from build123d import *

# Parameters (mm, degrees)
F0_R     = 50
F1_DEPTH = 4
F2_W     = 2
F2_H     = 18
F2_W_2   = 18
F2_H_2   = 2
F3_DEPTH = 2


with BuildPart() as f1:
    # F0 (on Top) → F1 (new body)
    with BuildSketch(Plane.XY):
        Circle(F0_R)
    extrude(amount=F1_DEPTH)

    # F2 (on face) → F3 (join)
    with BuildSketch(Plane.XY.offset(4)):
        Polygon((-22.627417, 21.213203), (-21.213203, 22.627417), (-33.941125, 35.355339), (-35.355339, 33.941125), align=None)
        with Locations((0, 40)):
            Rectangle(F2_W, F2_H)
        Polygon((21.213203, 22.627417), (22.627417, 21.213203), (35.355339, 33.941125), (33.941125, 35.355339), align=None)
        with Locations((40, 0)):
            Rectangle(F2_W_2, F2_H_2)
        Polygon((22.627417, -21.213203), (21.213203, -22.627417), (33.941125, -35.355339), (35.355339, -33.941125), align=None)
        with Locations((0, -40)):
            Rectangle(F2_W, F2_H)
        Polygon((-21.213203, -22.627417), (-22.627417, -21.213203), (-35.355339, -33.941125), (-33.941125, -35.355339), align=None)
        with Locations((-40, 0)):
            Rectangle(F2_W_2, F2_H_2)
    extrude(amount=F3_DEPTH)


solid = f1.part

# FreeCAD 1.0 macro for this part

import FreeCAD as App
import Part
import Sketcher
from FreeCAD import Vector

doc = App.newDocument("Part")
params = doc.addObject("Spreadsheet::Sheet", "Params")
for row, (alias, value) in enumerate([
    ("sketch1_diameter", "100 mm"),
    ("pad1_length", "4 mm"),
    ("sketch2_width", "2 mm"),
    ("sketch2_width2", "18 mm"),
    ("sketch2_length", "2.000001 mm"),
    ("sketch2_length2", "18 mm"),
    ("pad2_length", "2 mm"),
], start=1):
    params.set(f"A{row}", alias)
    params.set(f"B{row}", "=" + value)
    params.setAlias(f"B{row}", alias)

body = doc.addObject("PartDesign::Body", "Body")

# Sketch on XY plane
sketch1 = doc.addObject("Sketcher::SketchObject", "Sketch")
body.addObject(sketch1)
sketch1.AttachmentSupport = (doc.XY_Plane, [""])
sketch1.MapMode = "FlatFace"
sketch1.addGeometry(Part.Circle(Vector(0, 0, 0), Vector(0, 0, 1), 50), False)
sketch1.addConstraint(Sketcher.Constraint("Coincident", 0, 3, -1, 1))
sketch1.addConstraint(Sketcher.Constraint("Diameter", 0, 100.0))
sketch1.setExpression("Constraints[1]", "Params.sketch1_diameter")
pad1 = doc.addObject("PartDesign::Pad", "Pad")
body.addObject(pad1)
pad1.Profile = sketch1
pad1.setExpression("Length", "Params.pad1_length")

# Sketch on XY plane
sketch2 = doc.addObject("Sketcher::SketchObject", "Sketch001")
body.addObject(sketch2)
sketch2.AttachmentSupport = (doc.XY_Plane, [""])
sketch2.MapMode = "FlatFace"
sketch2.AttachmentOffset = App.Placement(Vector(0, 0, 4), App.Rotation())
sketch2.addGeometry(Part.LineSegment(Vector(-22.6, 21.2, 0), Vector(-21.2, 22.6, 0)), False)
sketch2.addGeometry(Part.LineSegment(Vector(-21.2, 22.6, 0), Vector(-33.9, 35.4, 0)), False)
sketch2.addGeometry(Part.LineSegment(Vector(-33.9, 35.4, 0), Vector(-35.4, 33.9, 0)), False)
sketch2.addGeometry(Part.LineSegment(Vector(-35.4, 33.9, 0), Vector(-22.6, 21.2, 0)), False)
sketch2.addGeometry(Part.LineSegment(Vector(-1, 49, 0), Vector(-1, 31, 0)), False)
sketch2.addGeometry(Part.LineSegment(Vector(-1, 31, 0), Vector(1, 31, 0)), False)
sketch2.addGeometry(Part.LineSegment(Vector(1, 31, 0), Vector(1, 49, 0)), False)
sketch2.addGeometry(Part.LineSegment(Vector(1, 49, 0), Vector(-1, 49, 0)), False)
sketch2.addGeometry(Part.LineSegment(Vector(21.2, 22.6, 0), Vector(22.6, 21.2, 0)), False)
sketch2.addGeometry(Part.LineSegment(Vector(22.6, 21.2, 0), Vector(35.4, 33.9, 0)), False)
sketch2.addGeometry(Part.LineSegment(Vector(35.4, 33.9, 0), Vector(33.9, 35.4, 0)), False)
sketch2.addGeometry(Part.LineSegment(Vector(33.9, 35.4, 0), Vector(21.2, 22.6, 0)), False)
sketch2.addGeometry(Part.LineSegment(Vector(31, 1, 0), Vector(31, -1, 0)), False)
sketch2.addGeometry(Part.LineSegment(Vector(31, -1, 0), Vector(49, -1, 0)), False)
sketch2.addGeometry(Part.LineSegment(Vector(49, -1, 0), Vector(49, 1, 0)), False)
sketch2.addGeometry(Part.LineSegment(Vector(49, 1, 0), Vector(31, 1, 0)), False)
sketch2.addGeometry(Part.LineSegment(Vector(22.6, -21.2, 0), Vector(21.2, -22.6, 0)), False)
sketch2.addGeometry(Part.LineSegment(Vector(21.2, -22.6, 0), Vector(33.9, -35.4, 0)), False)
sketch2.addGeometry(Part.LineSegment(Vector(33.9, -35.4, 0), Vector(35.4, -33.9, 0)), False)
sketch2.addGeometry(Part.LineSegment(Vector(35.4, -33.9, 0), Vector(22.6, -21.2, 0)), False)
sketch2.addGeometry(Part.LineSegment(Vector(-1, -31, 0), Vector(-1, -49, 0)), False)
sketch2.addGeometry(Part.LineSegment(Vector(-1, -49, 0), Vector(1, -49, 0)), False)
sketch2.addGeometry(Part.LineSegment(Vector(1, -49, 0), Vector(1, -31, 0)), False)
sketch2.addGeometry(Part.LineSegment(Vector(1, -31, 0), Vector(-1, -31, 0)), False)
sketch2.addGeometry(Part.LineSegment(Vector(-21.2, -22.6, 0), Vector(-22.6, -21.2, 0)), False)
sketch2.addGeometry(Part.LineSegment(Vector(-22.6, -21.2, 0), Vector(-35.4, -33.9, 0)), False)
sketch2.addGeometry(Part.LineSegment(Vector(-35.4, -33.9, 0), Vector(-33.9, -35.4, 0)), False)
sketch2.addGeometry(Part.LineSegment(Vector(-33.9, -35.4, 0), Vector(-21.2, -22.6, 0)), False)
sketch2.addGeometry(Part.LineSegment(Vector(-49, 1, 0), Vector(-49, -1, 0)), False)
sketch2.addGeometry(Part.LineSegment(Vector(-49, -1, 0), Vector(-31, -1, 0)), False)
sketch2.addGeometry(Part.LineSegment(Vector(-31, -1, 0), Vector(-31, 1, 0)), False)
sketch2.addGeometry(Part.LineSegment(Vector(-31, 1, 0), Vector(-49, 1, 0)), False)
sketch2.addConstraint(Sketcher.Constraint("Coincident", 0, 2, 1, 1))
sketch2.addConstraint(Sketcher.Constraint("Coincident", 1, 2, 2, 1))
sketch2.addConstraint(Sketcher.Constraint("Coincident", 2, 2, 3, 1))
sketch2.addConstraint(Sketcher.Constraint("Coincident", 3, 2, 0, 1))
sketch2.addConstraint(Sketcher.Constraint("Coincident", 4, 2, 5, 1))
sketch2.addConstraint(Sketcher.Constraint("Coincident", 5, 2, 6, 1))
sketch2.addConstraint(Sketcher.Constraint("Coincident", 6, 2, 7, 1))
sketch2.addConstraint(Sketcher.Constraint("Coincident", 7, 2, 4, 1))
sketch2.addConstraint(Sketcher.Constraint("Coincident", 8, 2, 9, 1))
sketch2.addConstraint(Sketcher.Constraint("Coincident", 9, 2, 10, 1))
sketch2.addConstraint(Sketcher.Constraint("Coincident", 10, 2, 11, 1))
sketch2.addConstraint(Sketcher.Constraint("Coincident", 11, 2, 8, 1))
sketch2.addConstraint(Sketcher.Constraint("Coincident", 12, 2, 13, 1))
sketch2.addConstraint(Sketcher.Constraint("Coincident", 13, 2, 14, 1))
sketch2.addConstraint(Sketcher.Constraint("Coincident", 14, 2, 15, 1))
sketch2.addConstraint(Sketcher.Constraint("Coincident", 15, 2, 12, 1))
sketch2.addConstraint(Sketcher.Constraint("Coincident", 16, 2, 17, 1))
sketch2.addConstraint(Sketcher.Constraint("Coincident", 17, 2, 18, 1))
sketch2.addConstraint(Sketcher.Constraint("Coincident", 18, 2, 19, 1))
sketch2.addConstraint(Sketcher.Constraint("Coincident", 19, 2, 16, 1))
sketch2.addConstraint(Sketcher.Constraint("Coincident", 20, 2, 21, 1))
sketch2.addConstraint(Sketcher.Constraint("Coincident", 21, 2, 22, 1))
sketch2.addConstraint(Sketcher.Constraint("Coincident", 22, 2, 23, 1))
sketch2.addConstraint(Sketcher.Constraint("Coincident", 23, 2, 20, 1))
sketch2.addConstraint(Sketcher.Constraint("Coincident", 24, 2, 25, 1))
sketch2.addConstraint(Sketcher.Constraint("Coincident", 25, 2, 26, 1))
sketch2.addConstraint(Sketcher.Constraint("Coincident", 26, 2, 27, 1))
sketch2.addConstraint(Sketcher.Constraint("Coincident", 27, 2, 24, 1))
sketch2.addConstraint(Sketcher.Constraint("Coincident", 28, 2, 29, 1))
sketch2.addConstraint(Sketcher.Constraint("Coincident", 29, 2, 30, 1))
sketch2.addConstraint(Sketcher.Constraint("Coincident", 30, 2, 31, 1))
sketch2.addConstraint(Sketcher.Constraint("Coincident", 31, 2, 28, 1))
sketch2.addConstraint(Sketcher.Constraint("Vertical", 4))
sketch2.addConstraint(Sketcher.Constraint("Horizontal", 5))
sketch2.addConstraint(Sketcher.Constraint("Vertical", 6))
sketch2.addConstraint(Sketcher.Constraint("Horizontal", 7))
sketch2.addConstraint(Sketcher.Constraint("Vertical", 12))
sketch2.addConstraint(Sketcher.Constraint("Horizontal", 13))
sketch2.addConstraint(Sketcher.Constraint("Vertical", 14))
sketch2.addConstraint(Sketcher.Constraint("Horizontal", 15))
sketch2.addConstraint(Sketcher.Constraint("Vertical", 20))
sketch2.addConstraint(Sketcher.Constraint("Horizontal", 21))
sketch2.addConstraint(Sketcher.Constraint("Vertical", 22))
sketch2.addConstraint(Sketcher.Constraint("Horizontal", 23))
sketch2.addConstraint(Sketcher.Constraint("Vertical", 28))
sketch2.addConstraint(Sketcher.Constraint("Horizontal", 29))
sketch2.addConstraint(Sketcher.Constraint("Vertical", 30))
sketch2.addConstraint(Sketcher.Constraint("Horizontal", 31))
sketch2.addConstraint(Sketcher.Constraint("Symmetric", 0, 2, 16, 2, -1, 1))
sketch2.addConstraint(Sketcher.Constraint("Symmetric", 1, 2, 17, 2, -1, 1))
sketch2.addConstraint(Sketcher.Constraint("Symmetric", 2, 2, 18, 2, -1, 1))
sketch2.addConstraint(Sketcher.Constraint("Symmetric", 3, 2, 19, 2, -1, 1))
sketch2.addConstraint(Sketcher.Constraint("Symmetric", 6, 2, 20, 2, -1, 1))
sketch2.addConstraint(Sketcher.Constraint("Symmetric", 4, 2, 22, 2, -1, 1))
sketch2.addConstraint(Sketcher.Constraint("Symmetric", 8, 2, 24, 2, -1, 1))
sketch2.addConstraint(Sketcher.Constraint("Symmetric", 9, 2, 25, 2, -1, 1))
sketch2.addConstraint(Sketcher.Constraint("Symmetric", 10, 2, 26, 2, -1, 1))
sketch2.addConstraint(Sketcher.Constraint("Symmetric", 11, 2, 27, 2, -1, 1))
sketch2.addConstraint(Sketcher.Constraint("Symmetric", 14, 2, 28, 2, -1, 1))
sketch2.addConstraint(Sketcher.Constraint("Symmetric", 12, 2, 30, 2, -1, 1))
sketch2.addConstraint(Sketcher.Constraint("Symmetric", 3, 2, 8, 2, -2))
sketch2.addConstraint(Sketcher.Constraint("Symmetric", 2, 2, 9, 2, -2))
sketch2.addConstraint(Sketcher.Constraint("Symmetric", 1, 2, 10, 2, -2))
sketch2.addConstraint(Sketcher.Constraint("Symmetric", 0, 2, 11, 2, -2))
sketch2.addConstraint(Sketcher.Constraint("Perpendicular", 0, 1))
sketch2.addConstraint(Sketcher.Constraint("Perpendicular", 1, 2))
sketch2.addConstraint(Sketcher.Constraint("Perpendicular", 2, 3))
sketch2.addConstraint(Sketcher.Constraint("Parallel", 3, 8))
sketch2.addConstraint(Sketcher.Constraint("Horizontal", 13, 2, 28, 2))
sketch2.addConstraint(Sketcher.Constraint("Vertical", 7, 2, 20, 2))
sketch2.addConstraint(Sketcher.Constraint("Equal", 31, 4))
sketch2.addConstraint(Sketcher.Constraint("Equal", 23, 12))
sketch2.addConstraint(Sketcher.Constraint("DistanceX", 5, 1, 5, 2, 2.0))
sketch2.addConstraint(Sketcher.Constraint("DistanceX", 13, 1, 13, 2, 18.0))
sketch2.addConstraint(Sketcher.Constraint("Distance", 0, 2.000001))
sketch2.addConstraint(Sketcher.Constraint("Distance", 1, 18.0))
sketch2.addConstraint(Sketcher.Constraint("DistanceY", -1, 1, 4, 2, 31.0))
sketch2.addConstraint(Sketcher.Constraint("DistanceX", -1, 1, 12, 2, 31.0))
sketch2.addConstraint(Sketcher.Constraint("DistanceY", -1, 1, 1, 2, 35.355339))
sketch2.addConstraint(Sketcher.Constraint("DistanceX", 2, 2, -1, 1, 35.355339))
sketch2.setExpression("Constraints[72]", "Params.sketch2_width")
sketch2.setExpression("Constraints[73]", "Params.sketch2_width2")
sketch2.setExpression("Constraints[74]", "Params.sketch2_length")
sketch2.setExpression("Constraints[75]", "Params.sketch2_length2")
pad2 = doc.addObject("PartDesign::Pad", "Pad001")
body.addObject(pad2)
pad2.Profile = sketch2
pad2.setExpression("Length", "Params.pad2_length")

doc.recompute()
